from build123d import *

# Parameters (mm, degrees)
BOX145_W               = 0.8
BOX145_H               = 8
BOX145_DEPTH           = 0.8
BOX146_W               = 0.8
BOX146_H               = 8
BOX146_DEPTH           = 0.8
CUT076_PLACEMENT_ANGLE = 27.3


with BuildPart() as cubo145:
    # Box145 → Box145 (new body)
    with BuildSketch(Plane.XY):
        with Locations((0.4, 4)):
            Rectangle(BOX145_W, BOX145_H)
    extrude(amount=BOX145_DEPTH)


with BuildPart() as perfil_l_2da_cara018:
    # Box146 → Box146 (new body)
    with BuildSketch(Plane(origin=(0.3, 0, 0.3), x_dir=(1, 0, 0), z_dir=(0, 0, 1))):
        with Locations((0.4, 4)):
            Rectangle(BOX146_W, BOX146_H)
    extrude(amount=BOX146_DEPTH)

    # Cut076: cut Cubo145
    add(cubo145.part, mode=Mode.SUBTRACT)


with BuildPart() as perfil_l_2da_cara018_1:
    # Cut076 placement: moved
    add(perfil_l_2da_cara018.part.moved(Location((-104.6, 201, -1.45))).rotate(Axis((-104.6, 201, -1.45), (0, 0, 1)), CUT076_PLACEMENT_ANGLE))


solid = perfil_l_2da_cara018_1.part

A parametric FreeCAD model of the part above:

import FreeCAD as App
import Part
import Sketcher
from FreeCAD import Vector
Q = App.Units.Quantity

doc = App.newDocument("Part")
params = doc.addObject("Spreadsheet::Sheet", "Params")
for row, (alias, value) in enumerate([
    ("sketch1_height", "8 mm"),
    ("sketch1_width", "0.8 mm"),
    ("pad1_length", "0.8 mm"),
    ("sketch2_height", "8 mm"),
    ("sketch2_width", "0.8 mm"),
    ("pad2_length", "0.8 mm"),
], start=1):
    params.set(f"A{row}", alias)
    params.set(f"B{row}", "=" + value)
    params.setAlias(f"B{row}", alias)

body = doc.addObject("PartDesign::Body", "Body")

# Sketch on XY plane
sketch1 = body.newObject("Sketcher::SketchObject", "Sketch")
sketch1.AttachmentSupport = (doc.getObject("XY_Plane"), [""])
sketch1.MapMode = "FlatFace"
sketch1.addGeometry([
    Part.LineSegment(Vector(0, 8, 0), Vector(0, 0, 0)),
    Part.LineSegment(Vector(0, 0, 0), Vector(0.8, 0, 0)),
    Part.LineSegment(Vector(0.8, 0, 0), Vector(0.8, 8, 0)),
    Part.LineSegment(Vector(0.8, 8, 0), Vector(0, 8, 0)),
], False)
sketch1.addConstraint([
    Sketcher.Constraint("Coincident", 0, 2, 1, 1),
    Sketcher.Constraint("Coincident", 1, 2, 2, 1),
    Sketcher.Constraint("Coincident", 2, 2, 3, 1),
    Sketcher.Constraint("Coincident", 3, 2, 0, 1),
    Sketcher.Constraint("Vertical", 0),
    Sketcher.Constraint("Horizontal", 1),
    Sketcher.Constraint("Vertical", 2),
    Sketcher.Constraint("Horizontal", 3),
    Sketcher.Constraint("Coincident", 0, 2, -1, 1),
    Sketcher.Constraint("DistanceY", 0, 2, 0, 1, Q("8 mm")),
    Sketcher.Constraint("DistanceX", 1, 1, 1, 2, Q("0.8 mm")),
])
sketch1.setExpression("Constraints[9]", "Params.sketch1_height")
sketch1.setExpression("Constraints[10]", "Params.sketch1_width")
pad1 = body.newObject("PartDesign::Pad", "Pad")
pad1.Profile = sketch1
pad1.setExpression("Length", "Params.pad1_length")
body2 = doc.addObject("PartDesign::Body", "Body001")

# Sketch on XY plane
sketch2 = body2.newObject("Sketcher::SketchObject", "Sketch001")
sketch2.AttachmentSupport = (doc.getObject("XY_Plane001"), [""])
sketch2.MapMode = "FlatFace"
sketch2.AttachmentOffset = App.Placement(Vector(0, 0, 0.3), App.Rotation())
sketch2.addGeometry([
    Part.LineSegment(Vector(0.3, 8, 0), Vector(0.3, 0, 0)),
    Part.LineSegment(Vector(0.3, 0, 0), Vector(1.1, 0, 0)),
    Part.LineSegment(Vector(1.1, 0, 0), Vector(1.1, 8, 0)),
    Part.LineSegment(Vector(1.1, 8, 0), Vector(0.3, 8, 0)),
], False)
sketch2.addConstraint([
    Sketcher.Constraint("Coincident", 0, 2, 1, 1),
    Sketcher.Constraint("Coincident", 1, 2, 2, 1),
    Sketcher.Constraint("Coincident", 2, 2, 3, 1),
    Sketcher.Constraint("Coincident", 3, 2, 0, 1),
    Sketcher.Constraint("Vertical", 0),
    Sketcher.Constraint("Horizontal", 1),
    Sketcher.Constraint("Vertical", 2),
    Sketcher.Constraint("Horizontal", 3),
    Sketcher.Constraint("PointOnObject", 0, 2, -1),
    Sketcher.Constraint("DistanceY", 0, 2, 0, 1, Q("8 mm")),
    Sketcher.Constraint("DistanceX", 1, 1, 1, 2, Q("0.8 mm")),
    Sketcher.Constraint("DistanceX", -1, 1, 0, 2, Q("0.3 mm")),
])
sketch2.setExpression("Constraints[9]", "Params.sketch2_height")
sketch2.setExpression("Constraints[10]", "Params.sketch2_width")
pad2 = body2.newObject("PartDesign::Pad", "Pad001")
pad2.Profile = sketch2
pad2.setExpression("Length", "Params.pad2_length")
doc.recompute()

boolean = body2.newObject("PartDesign::Boolean", "Boolean")
boolean.Type = "Cut"
boolean.addObjects([body])
body3 = doc.addObject("PartDesign::Body", "Body002")
doc.recompute()

body2.Placement = App.Placement(Vector(-104.6, 201, -1.45), App.Rotation(Vector(0, 0, 1), 27.3))
boolean2 = body3.newObject("PartDesign::Boolean", "Boolean001")
boolean2.Type = "Fuse"
boolean2.addObjects([body2])

doc.recompute()
